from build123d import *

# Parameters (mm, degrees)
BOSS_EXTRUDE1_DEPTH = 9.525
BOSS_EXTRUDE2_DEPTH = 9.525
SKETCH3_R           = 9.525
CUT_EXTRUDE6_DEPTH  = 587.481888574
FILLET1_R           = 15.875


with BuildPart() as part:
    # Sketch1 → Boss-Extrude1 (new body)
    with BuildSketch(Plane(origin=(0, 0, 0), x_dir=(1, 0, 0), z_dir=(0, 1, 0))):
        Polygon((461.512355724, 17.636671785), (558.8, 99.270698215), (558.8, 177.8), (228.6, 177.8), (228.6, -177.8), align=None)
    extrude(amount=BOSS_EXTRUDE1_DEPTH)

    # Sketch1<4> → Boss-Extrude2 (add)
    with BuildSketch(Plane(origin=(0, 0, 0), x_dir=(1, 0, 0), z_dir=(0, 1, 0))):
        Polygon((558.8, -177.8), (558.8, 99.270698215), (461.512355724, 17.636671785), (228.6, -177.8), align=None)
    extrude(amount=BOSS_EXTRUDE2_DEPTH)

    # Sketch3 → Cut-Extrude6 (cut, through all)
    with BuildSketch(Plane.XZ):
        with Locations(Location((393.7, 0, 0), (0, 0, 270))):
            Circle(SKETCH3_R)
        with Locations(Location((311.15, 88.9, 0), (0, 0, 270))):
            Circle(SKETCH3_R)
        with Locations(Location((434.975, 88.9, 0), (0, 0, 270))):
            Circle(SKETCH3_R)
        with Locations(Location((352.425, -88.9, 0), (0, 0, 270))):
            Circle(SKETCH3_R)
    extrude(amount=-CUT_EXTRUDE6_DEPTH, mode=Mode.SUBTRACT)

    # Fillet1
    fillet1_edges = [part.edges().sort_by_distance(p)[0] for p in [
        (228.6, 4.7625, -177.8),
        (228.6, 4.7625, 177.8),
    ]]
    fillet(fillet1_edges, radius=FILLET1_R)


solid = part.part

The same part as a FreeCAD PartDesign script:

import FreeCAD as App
import Part
import Sketcher

V = App.Vector
Q = App.Units.Quantity


def edges_at(feature, points):
    """Names of the edges that pass closest to the given points."""
    edges = feature.Shape.Edges
    near = lambda p: min(range(len(edges)), key=lambda i: edges[i].distToShape(Part.Vertex(*p))[0])
    return sorted({f"Edge{near(p) + 1}" for p in points})


def add_polygon(sketch, points):
    """Adds a closed chain of lines whose ends are joined by coincident constraints."""
    first, n = sketch.GeometryCount, len(points)
    for a, b in zip(points, points[1:] + points[:1]):
        sketch.addGeometry(Part.LineSegment(App.Vector(*a, 0), App.Vector(*b, 0)), False)
    for i in range(n):
        sketch.addConstraint(Sketcher.Constraint("Coincident", first + i, 2, first + (i + 1) % n, 1))

doc = App.newDocument("Part")
body = doc.addObject("PartDesign::Body", "Body")

# Sketch on XZ plane
sketch1 = body.newObject("Sketcher::SketchObject", "Sketch")
sketch1.AttachmentSupport = (doc.getObject("XZ_Plane"), [""])
sketch1.MapMode = "FlatFace"
add_polygon(sketch1, [(462, -18), (559, -99), (559, -178), (229, -178), (229, 178)])  # lines 0-4
sketch1.addConstraint([
    Sketcher.Constraint("Vertical", 1),
    Sketcher.Constraint("Horizontal", 2),
    Sketcher.Constraint("Vertical", 3),
    Sketcher.Constraint("Parallel", 0, 4),
    Sketcher.Constraint("DistanceX", 2, 2, 2, 1, Q("13 in")),
    Sketcher.Constraint("DistanceY", 3, 1, 3, 2, Q("14 in")),
    Sketcher.Constraint("Distance", 0, Q("5 in")),
    Sketcher.Constraint("DistanceX", -1, 1, 0, 2, Q("22 in")),
    Sketcher.Constraint("DistanceY", 1, 2, -1, 1, Q("7 in")),
    Sketcher.Constraint("Angle", 0, Q("-40 deg")),
])
pad1 = body.newObject("PartDesign::Pad", "Pad")
pad1.Profile = sketch1
pad1.Length = Q("0.375 in")
pad1.Reversed = True

# Sketch on XZ plane
sketch2 = body.newObject("Sketcher::SketchObject", "Sketch001")
sketch2.AttachmentSupport = (doc.getObject("XZ_Plane"), [""])
sketch2.MapMode = "FlatFace"
add_polygon(sketch2, [(559, 178), (559, -99), (462, -18), (229, 178)])  # lines 0-3
sketch2.addConstraint([
    Sketcher.Constraint("Vertical", 0),
    Sketcher.Constraint("Horizontal", 3),
    Sketcher.Constraint("Parallel", 1, 2),
    Sketcher.Constraint("DistanceX", 3, 1, 3, 2, Q("13 in")),
    Sketcher.Constraint("Distance", 1, Q("5 in")),
    Sketcher.Constraint("DistanceX", -1, 1, 0, 2, Q("22 in")),
    Sketcher.Constraint("DistanceY", -1, 1, 2, 2, Q("7 in")),
    Sketcher.Constraint("Angle", 1, Q("140 deg")),
])
pad2 = body.newObject("PartDesign::Pad", "Pad001")
pad2.Profile = sketch2
pad2.Length = Q("0.375 in")
pad2.Reversed = True

# Sketch on XZ plane
sketch3 = body.newObject("Sketcher::SketchObject", "Sketch002")
sketch3.AttachmentSupport = (doc.getObject("XZ_Plane"), [""])
sketch3.MapMode = "FlatFace"
sketch3.addGeometry([
    Part.Circle(V(394, 0, 0), V(0, 0, 1), 10),
    Part.Circle(V(311, 89, 0), V(0, 0, 1), 10),
    Part.Circle(V(435, 89, 0), V(0, 0, 1), 10),
    Part.Circle(V(352, -89, 0), V(0, 0, 1), 10),
], False)
sketch3.addConstraint([
    Sketcher.Constraint("Equal", 0, 1),
    Sketcher.Constraint("Equal", 1, 2),
    Sketcher.Constraint("Equal", 2, 3),
    Sketcher.Constraint("PointOnObject", 0, 3, -1),
    Sketcher.Constraint("Horizontal", 1, 3, 2, 3),
    Sketcher.Constraint("Diameter", 0, Q("0.75 in")),
    Sketcher.Constraint("DistanceY", 3, 3, 1, 3, Q("7 in")),
    Sketcher.Constraint("DistanceX", -1, 1, 0, 3, Q("15.5 in")),
    Sketcher.Constraint("DistanceY", -1, 1, 1, 3, Q("3.5 in")),
    Sketcher.Constraint("DistanceX", -1, 1, 1, 3, Q("12.25 in")),
    Sketcher.Constraint("DistanceX", 3, 3, 2, 3, Q("3.25 in")),
    Sketcher.Constraint("DistanceX", -1, 1, 2, 3, Q("17.125 in")),
])
pocket1 = body.newObject("PartDesign::Pocket", "Pocket")
pocket1.Profile = sketch3
pocket1.Type = "ThroughAll"
doc.recompute()

fillet = body.newObject("PartDesign::Fillet", "Fillet")
fillet.Base = (pocket1, edges_at(pocket1, [(228.6, 4.763, -177.8), (228.6, 4.763, 177.8)]))
fillet.Radius = Q("0.625 in")

doc.recompute()
